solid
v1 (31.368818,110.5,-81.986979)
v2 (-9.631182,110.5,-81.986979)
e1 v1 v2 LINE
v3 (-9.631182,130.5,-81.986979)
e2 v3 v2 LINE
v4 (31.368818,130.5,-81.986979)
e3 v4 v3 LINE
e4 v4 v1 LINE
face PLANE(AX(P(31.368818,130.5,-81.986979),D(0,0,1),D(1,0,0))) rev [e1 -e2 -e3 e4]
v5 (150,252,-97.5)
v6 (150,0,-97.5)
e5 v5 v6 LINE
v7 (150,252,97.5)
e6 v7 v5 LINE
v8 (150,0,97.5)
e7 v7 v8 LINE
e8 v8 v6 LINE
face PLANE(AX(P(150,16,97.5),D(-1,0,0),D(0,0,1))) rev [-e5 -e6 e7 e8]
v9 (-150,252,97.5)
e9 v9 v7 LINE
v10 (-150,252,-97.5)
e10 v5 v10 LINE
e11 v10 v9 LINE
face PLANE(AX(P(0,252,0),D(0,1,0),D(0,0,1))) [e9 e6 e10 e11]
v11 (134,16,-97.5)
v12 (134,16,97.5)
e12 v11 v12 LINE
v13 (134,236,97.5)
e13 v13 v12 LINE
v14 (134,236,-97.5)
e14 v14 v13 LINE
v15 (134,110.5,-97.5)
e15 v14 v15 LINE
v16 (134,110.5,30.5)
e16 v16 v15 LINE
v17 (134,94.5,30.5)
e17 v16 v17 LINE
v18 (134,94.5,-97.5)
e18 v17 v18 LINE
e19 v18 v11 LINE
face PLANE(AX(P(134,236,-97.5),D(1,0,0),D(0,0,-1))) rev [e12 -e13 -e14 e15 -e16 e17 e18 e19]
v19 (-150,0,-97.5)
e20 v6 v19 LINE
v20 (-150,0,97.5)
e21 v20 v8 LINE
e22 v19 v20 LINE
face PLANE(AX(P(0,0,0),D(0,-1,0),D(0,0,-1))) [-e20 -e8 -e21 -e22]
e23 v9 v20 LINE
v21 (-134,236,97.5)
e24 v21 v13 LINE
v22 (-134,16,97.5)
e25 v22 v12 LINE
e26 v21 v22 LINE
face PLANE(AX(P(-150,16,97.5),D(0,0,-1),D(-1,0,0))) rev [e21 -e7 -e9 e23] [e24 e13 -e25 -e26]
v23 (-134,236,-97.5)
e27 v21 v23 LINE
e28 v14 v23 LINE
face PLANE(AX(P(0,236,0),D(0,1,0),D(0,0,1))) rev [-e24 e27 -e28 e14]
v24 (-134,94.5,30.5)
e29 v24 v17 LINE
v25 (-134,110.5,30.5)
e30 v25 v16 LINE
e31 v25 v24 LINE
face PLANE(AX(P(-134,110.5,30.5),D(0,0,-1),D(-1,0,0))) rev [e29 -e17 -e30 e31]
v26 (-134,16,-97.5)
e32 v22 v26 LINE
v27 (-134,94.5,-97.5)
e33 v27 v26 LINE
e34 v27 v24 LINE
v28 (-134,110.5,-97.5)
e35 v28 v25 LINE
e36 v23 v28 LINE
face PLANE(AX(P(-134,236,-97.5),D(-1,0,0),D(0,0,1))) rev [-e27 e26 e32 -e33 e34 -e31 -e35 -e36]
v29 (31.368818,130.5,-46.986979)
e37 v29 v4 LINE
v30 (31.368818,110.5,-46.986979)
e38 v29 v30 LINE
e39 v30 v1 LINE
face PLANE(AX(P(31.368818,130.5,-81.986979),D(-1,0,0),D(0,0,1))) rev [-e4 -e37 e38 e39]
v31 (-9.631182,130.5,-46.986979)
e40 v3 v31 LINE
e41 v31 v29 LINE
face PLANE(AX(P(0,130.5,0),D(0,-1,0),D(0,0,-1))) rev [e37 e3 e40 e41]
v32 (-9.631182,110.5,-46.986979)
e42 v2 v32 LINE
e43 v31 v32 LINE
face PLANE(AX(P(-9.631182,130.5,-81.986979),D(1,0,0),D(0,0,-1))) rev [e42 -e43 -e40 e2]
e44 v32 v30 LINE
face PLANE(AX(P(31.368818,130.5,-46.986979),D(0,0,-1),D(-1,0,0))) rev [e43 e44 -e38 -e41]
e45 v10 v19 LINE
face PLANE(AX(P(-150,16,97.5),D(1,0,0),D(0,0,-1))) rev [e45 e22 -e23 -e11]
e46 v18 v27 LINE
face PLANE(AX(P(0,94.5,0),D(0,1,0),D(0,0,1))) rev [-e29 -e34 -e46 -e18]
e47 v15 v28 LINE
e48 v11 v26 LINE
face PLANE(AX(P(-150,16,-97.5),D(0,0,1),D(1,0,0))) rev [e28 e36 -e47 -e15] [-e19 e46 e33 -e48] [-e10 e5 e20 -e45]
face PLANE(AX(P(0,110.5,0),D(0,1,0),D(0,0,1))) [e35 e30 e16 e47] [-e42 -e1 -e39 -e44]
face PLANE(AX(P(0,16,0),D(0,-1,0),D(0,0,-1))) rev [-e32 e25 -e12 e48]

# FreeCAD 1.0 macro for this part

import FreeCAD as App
import Part
import Sketcher

V = App.Vector


def add_polygon(sketch, points):
    """Adds a closed chain of lines whose ends are joined by coincident constraints."""
    first, n = sketch.GeometryCount, len(points)
    for a, b in zip(points, points[1:] + points[:1]):
        sketch.addGeometry(Part.LineSegment(App.Vector(*a, 0), App.Vector(*b, 0)), False)
    for i in range(n):
        sketch.addConstraint(Sketcher.Constraint("Coincident", first + i, 2, first + (i + 1) % n, 1))

doc = App.newDocument("Part")
body = doc.addObject("PartDesign::Body", "Body")

# Sketch on XZ plane
sketch1 = body.newObject("Sketcher::SketchObject", "Sketch")
sketch1.AttachmentSupport = (doc.getObject("XZ_Plane"), [""])
sketch1.MapMode = "FlatFace"
add_polygon(sketch1, [(-150, -98), (-150, 98), (150, 98), (150, -98)])  # lines 0-3
sketch1.addConstraint([
    Sketcher.Constraint("Vertical", 0),
    Sketcher.Constraint("Horizontal", 1),
    Sketcher.Constraint("Vertical", 2),
    Sketcher.Constraint("Horizontal", 3),
    Sketcher.Constraint("Symmetric", 0, 2, 2, 2, -1, 1),
    Sketcher.Constraint("DistanceX", 1, 1, 1, 2, 300.0),
    Sketcher.Constraint("DistanceY", 0, 1, 0, 2, 195.0),
])
pad1 = body.newObject("PartDesign::Pad", "Pad")
pad1.Profile = sketch1
pad1.Length = 16
pad1.Reversed = True

# Sketch on XZ plane
sketch2 = body.newObject("Sketcher::SketchObject", "Sketch001")
sketch2.AttachmentSupport = (doc.getObject("XZ_Plane"), [""])
sketch2.MapMode = "FlatFace"
sketch2.AttachmentOffset = App.Placement(V(0, 0, -16), App.Rotation())
add_polygon(sketch2, [(-150, -98), (-150, 98), (-134, 98), (-134, -98)])  # lines 0-3
add_polygon(sketch2, [(134, -98), (134, 98), (150, 98), (150, -98)])  # lines 4-7
sketch2.addConstraint([
    Sketcher.Constraint("Vertical", 0),
    Sketcher.Constraint("Horizontal", 1),
    Sketcher.Constraint("Vertical", 2),
    Sketcher.Constraint("Horizontal", 3),
    Sketcher.Constraint("Vertical", 4),
    Sketcher.Constraint("Horizontal", 5),
    Sketcher.Constraint("Vertical", 6),
    Sketcher.Constraint("Horizontal", 7),
    Sketcher.Constraint("Symmetric", 2, 2, 4, 2, -1, 1),
    Sketcher.Constraint("Symmetric", 0, 2, 6, 2, -1, 1),
    Sketcher.Constraint("Horizontal", 1, 2, 4, 2),
    Sketcher.Constraint("DistanceX", 1, 1, 1, 2, 16.0),
    Sketcher.Constraint("DistanceY", 0, 1, 0, 2, 195.0),
    Sketcher.Constraint("DistanceX", 0, 2, -1, 1, 150.0),
])
pad2 = body.newObject("PartDesign::Pad", "Pad001")
pad2.Profile = sketch2
pad2.Length = 220
pad2.Reversed = True

# Sketch on XZ plane
sketch3 = body.newObject("Sketcher::SketchObject", "Sketch002")
sketch3.AttachmentSupport = (doc.getObject("XZ_Plane"), [""])
sketch3.MapMode = "FlatFace"
sketch3.AttachmentOffset = App.Placement(V(0, 0, -236), App.Rotation())
add_polygon(sketch3, [(-150, -98), (-150, 98), (150, 98), (150, -98)])  # lines 0-3
sketch3.addConstraint([
    Sketcher.Constraint("Vertical", 0),
    Sketcher.Constraint("Horizontal", 1),
    Sketcher.Constraint("Vertical", 2),
    Sketcher.Constraint("Horizontal", 3),
    Sketcher.Constraint("Symmetric", 0, 2, 2, 2, -1, 1),
    Sketcher.Constraint("DistanceX", 1, 1, 1, 2, 300.0),
    Sketcher.Constraint("DistanceY", 0, 1, 0, 2, 195.0),
])
pad3 = body.newObject("PartDesign::Pad", "Pad002")
pad3.Profile = sketch3
pad3.Length = 16
pad3.Reversed = True

# Sketch on XZ plane
sketch4 = body.newObject("Sketcher::SketchObject", "Sketch003")
sketch4.AttachmentSupport = (doc.getObject("XZ_Plane"), [""])
sketch4.MapMode = "FlatFace"
sketch4.AttachmentOffset = App.Placement(V(0, 0, -94.5), App.Rotation())
add_polygon(sketch4, [(-134, -98), (-134, 30), (134, 30), (134, -98)])  # lines 0-3
sketch4.addConstraint([
    Sketcher.Constraint("Vertical", 0),
    Sketcher.Constraint("Horizontal", 1),
    Sketcher.Constraint("Vertical", 2),
    Sketcher.Constraint("Horizontal", 3),
    Sketcher.Constraint("DistanceX", 1, 1, 1, 2, 268.0),
    Sketcher.Constraint("DistanceY", 0, 1, 0, 2, 128.0),
    Sketcher.Constraint("DistanceX", 0, 2, -1, 1, 134.0),
    Sketcher.Constraint("DistanceY", -1, 1, 0, 2, 30.5),
])
pad4 = body.newObject("PartDesign::Pad", "Pad003")
pad4.Profile = sketch4
pad4.Length = 16
pad4.Reversed = True

# Sketch on XZ plane
sketch5 = body.newObject("Sketcher::SketchObject", "Sketch004")
sketch5.AttachmentSupport = (doc.getObject("XZ_Plane"), [""])
sketch5.MapMode = "FlatFace"
sketch5.AttachmentOffset = App.Placement(V(0, 0, -110.5), App.Rotation())
add_polygon(sketch5, [(-10, -82), (-10, -47), (31, -47), (31, -82)])  # lines 0-3
sketch5.addConstraint([
    Sketcher.Constraint("Vertical", 0),
    Sketcher.Constraint("Horizontal", 1),
    Sketcher.Constraint("Vertical", 2),
    Sketcher.Constraint("Horizontal", 3),
    Sketcher.Constraint("DistanceX", 1, 1, 1, 2, 41.0),
    Sketcher.Constraint("DistanceY", 0, 1, 0, 2, 35.0),
    Sketcher.Constraint("DistanceX", 0, 2, -1, 1, 9.631182),
    Sketcher.Constraint("DistanceY", 0, 2, -1, 1, 46.986979),
])
pad5 = body.newObject("PartDesign::Pad", "Pad004")
pad5.Profile = sketch5
pad5.Length = 20
pad5.Reversed = True

doc.recompute()
